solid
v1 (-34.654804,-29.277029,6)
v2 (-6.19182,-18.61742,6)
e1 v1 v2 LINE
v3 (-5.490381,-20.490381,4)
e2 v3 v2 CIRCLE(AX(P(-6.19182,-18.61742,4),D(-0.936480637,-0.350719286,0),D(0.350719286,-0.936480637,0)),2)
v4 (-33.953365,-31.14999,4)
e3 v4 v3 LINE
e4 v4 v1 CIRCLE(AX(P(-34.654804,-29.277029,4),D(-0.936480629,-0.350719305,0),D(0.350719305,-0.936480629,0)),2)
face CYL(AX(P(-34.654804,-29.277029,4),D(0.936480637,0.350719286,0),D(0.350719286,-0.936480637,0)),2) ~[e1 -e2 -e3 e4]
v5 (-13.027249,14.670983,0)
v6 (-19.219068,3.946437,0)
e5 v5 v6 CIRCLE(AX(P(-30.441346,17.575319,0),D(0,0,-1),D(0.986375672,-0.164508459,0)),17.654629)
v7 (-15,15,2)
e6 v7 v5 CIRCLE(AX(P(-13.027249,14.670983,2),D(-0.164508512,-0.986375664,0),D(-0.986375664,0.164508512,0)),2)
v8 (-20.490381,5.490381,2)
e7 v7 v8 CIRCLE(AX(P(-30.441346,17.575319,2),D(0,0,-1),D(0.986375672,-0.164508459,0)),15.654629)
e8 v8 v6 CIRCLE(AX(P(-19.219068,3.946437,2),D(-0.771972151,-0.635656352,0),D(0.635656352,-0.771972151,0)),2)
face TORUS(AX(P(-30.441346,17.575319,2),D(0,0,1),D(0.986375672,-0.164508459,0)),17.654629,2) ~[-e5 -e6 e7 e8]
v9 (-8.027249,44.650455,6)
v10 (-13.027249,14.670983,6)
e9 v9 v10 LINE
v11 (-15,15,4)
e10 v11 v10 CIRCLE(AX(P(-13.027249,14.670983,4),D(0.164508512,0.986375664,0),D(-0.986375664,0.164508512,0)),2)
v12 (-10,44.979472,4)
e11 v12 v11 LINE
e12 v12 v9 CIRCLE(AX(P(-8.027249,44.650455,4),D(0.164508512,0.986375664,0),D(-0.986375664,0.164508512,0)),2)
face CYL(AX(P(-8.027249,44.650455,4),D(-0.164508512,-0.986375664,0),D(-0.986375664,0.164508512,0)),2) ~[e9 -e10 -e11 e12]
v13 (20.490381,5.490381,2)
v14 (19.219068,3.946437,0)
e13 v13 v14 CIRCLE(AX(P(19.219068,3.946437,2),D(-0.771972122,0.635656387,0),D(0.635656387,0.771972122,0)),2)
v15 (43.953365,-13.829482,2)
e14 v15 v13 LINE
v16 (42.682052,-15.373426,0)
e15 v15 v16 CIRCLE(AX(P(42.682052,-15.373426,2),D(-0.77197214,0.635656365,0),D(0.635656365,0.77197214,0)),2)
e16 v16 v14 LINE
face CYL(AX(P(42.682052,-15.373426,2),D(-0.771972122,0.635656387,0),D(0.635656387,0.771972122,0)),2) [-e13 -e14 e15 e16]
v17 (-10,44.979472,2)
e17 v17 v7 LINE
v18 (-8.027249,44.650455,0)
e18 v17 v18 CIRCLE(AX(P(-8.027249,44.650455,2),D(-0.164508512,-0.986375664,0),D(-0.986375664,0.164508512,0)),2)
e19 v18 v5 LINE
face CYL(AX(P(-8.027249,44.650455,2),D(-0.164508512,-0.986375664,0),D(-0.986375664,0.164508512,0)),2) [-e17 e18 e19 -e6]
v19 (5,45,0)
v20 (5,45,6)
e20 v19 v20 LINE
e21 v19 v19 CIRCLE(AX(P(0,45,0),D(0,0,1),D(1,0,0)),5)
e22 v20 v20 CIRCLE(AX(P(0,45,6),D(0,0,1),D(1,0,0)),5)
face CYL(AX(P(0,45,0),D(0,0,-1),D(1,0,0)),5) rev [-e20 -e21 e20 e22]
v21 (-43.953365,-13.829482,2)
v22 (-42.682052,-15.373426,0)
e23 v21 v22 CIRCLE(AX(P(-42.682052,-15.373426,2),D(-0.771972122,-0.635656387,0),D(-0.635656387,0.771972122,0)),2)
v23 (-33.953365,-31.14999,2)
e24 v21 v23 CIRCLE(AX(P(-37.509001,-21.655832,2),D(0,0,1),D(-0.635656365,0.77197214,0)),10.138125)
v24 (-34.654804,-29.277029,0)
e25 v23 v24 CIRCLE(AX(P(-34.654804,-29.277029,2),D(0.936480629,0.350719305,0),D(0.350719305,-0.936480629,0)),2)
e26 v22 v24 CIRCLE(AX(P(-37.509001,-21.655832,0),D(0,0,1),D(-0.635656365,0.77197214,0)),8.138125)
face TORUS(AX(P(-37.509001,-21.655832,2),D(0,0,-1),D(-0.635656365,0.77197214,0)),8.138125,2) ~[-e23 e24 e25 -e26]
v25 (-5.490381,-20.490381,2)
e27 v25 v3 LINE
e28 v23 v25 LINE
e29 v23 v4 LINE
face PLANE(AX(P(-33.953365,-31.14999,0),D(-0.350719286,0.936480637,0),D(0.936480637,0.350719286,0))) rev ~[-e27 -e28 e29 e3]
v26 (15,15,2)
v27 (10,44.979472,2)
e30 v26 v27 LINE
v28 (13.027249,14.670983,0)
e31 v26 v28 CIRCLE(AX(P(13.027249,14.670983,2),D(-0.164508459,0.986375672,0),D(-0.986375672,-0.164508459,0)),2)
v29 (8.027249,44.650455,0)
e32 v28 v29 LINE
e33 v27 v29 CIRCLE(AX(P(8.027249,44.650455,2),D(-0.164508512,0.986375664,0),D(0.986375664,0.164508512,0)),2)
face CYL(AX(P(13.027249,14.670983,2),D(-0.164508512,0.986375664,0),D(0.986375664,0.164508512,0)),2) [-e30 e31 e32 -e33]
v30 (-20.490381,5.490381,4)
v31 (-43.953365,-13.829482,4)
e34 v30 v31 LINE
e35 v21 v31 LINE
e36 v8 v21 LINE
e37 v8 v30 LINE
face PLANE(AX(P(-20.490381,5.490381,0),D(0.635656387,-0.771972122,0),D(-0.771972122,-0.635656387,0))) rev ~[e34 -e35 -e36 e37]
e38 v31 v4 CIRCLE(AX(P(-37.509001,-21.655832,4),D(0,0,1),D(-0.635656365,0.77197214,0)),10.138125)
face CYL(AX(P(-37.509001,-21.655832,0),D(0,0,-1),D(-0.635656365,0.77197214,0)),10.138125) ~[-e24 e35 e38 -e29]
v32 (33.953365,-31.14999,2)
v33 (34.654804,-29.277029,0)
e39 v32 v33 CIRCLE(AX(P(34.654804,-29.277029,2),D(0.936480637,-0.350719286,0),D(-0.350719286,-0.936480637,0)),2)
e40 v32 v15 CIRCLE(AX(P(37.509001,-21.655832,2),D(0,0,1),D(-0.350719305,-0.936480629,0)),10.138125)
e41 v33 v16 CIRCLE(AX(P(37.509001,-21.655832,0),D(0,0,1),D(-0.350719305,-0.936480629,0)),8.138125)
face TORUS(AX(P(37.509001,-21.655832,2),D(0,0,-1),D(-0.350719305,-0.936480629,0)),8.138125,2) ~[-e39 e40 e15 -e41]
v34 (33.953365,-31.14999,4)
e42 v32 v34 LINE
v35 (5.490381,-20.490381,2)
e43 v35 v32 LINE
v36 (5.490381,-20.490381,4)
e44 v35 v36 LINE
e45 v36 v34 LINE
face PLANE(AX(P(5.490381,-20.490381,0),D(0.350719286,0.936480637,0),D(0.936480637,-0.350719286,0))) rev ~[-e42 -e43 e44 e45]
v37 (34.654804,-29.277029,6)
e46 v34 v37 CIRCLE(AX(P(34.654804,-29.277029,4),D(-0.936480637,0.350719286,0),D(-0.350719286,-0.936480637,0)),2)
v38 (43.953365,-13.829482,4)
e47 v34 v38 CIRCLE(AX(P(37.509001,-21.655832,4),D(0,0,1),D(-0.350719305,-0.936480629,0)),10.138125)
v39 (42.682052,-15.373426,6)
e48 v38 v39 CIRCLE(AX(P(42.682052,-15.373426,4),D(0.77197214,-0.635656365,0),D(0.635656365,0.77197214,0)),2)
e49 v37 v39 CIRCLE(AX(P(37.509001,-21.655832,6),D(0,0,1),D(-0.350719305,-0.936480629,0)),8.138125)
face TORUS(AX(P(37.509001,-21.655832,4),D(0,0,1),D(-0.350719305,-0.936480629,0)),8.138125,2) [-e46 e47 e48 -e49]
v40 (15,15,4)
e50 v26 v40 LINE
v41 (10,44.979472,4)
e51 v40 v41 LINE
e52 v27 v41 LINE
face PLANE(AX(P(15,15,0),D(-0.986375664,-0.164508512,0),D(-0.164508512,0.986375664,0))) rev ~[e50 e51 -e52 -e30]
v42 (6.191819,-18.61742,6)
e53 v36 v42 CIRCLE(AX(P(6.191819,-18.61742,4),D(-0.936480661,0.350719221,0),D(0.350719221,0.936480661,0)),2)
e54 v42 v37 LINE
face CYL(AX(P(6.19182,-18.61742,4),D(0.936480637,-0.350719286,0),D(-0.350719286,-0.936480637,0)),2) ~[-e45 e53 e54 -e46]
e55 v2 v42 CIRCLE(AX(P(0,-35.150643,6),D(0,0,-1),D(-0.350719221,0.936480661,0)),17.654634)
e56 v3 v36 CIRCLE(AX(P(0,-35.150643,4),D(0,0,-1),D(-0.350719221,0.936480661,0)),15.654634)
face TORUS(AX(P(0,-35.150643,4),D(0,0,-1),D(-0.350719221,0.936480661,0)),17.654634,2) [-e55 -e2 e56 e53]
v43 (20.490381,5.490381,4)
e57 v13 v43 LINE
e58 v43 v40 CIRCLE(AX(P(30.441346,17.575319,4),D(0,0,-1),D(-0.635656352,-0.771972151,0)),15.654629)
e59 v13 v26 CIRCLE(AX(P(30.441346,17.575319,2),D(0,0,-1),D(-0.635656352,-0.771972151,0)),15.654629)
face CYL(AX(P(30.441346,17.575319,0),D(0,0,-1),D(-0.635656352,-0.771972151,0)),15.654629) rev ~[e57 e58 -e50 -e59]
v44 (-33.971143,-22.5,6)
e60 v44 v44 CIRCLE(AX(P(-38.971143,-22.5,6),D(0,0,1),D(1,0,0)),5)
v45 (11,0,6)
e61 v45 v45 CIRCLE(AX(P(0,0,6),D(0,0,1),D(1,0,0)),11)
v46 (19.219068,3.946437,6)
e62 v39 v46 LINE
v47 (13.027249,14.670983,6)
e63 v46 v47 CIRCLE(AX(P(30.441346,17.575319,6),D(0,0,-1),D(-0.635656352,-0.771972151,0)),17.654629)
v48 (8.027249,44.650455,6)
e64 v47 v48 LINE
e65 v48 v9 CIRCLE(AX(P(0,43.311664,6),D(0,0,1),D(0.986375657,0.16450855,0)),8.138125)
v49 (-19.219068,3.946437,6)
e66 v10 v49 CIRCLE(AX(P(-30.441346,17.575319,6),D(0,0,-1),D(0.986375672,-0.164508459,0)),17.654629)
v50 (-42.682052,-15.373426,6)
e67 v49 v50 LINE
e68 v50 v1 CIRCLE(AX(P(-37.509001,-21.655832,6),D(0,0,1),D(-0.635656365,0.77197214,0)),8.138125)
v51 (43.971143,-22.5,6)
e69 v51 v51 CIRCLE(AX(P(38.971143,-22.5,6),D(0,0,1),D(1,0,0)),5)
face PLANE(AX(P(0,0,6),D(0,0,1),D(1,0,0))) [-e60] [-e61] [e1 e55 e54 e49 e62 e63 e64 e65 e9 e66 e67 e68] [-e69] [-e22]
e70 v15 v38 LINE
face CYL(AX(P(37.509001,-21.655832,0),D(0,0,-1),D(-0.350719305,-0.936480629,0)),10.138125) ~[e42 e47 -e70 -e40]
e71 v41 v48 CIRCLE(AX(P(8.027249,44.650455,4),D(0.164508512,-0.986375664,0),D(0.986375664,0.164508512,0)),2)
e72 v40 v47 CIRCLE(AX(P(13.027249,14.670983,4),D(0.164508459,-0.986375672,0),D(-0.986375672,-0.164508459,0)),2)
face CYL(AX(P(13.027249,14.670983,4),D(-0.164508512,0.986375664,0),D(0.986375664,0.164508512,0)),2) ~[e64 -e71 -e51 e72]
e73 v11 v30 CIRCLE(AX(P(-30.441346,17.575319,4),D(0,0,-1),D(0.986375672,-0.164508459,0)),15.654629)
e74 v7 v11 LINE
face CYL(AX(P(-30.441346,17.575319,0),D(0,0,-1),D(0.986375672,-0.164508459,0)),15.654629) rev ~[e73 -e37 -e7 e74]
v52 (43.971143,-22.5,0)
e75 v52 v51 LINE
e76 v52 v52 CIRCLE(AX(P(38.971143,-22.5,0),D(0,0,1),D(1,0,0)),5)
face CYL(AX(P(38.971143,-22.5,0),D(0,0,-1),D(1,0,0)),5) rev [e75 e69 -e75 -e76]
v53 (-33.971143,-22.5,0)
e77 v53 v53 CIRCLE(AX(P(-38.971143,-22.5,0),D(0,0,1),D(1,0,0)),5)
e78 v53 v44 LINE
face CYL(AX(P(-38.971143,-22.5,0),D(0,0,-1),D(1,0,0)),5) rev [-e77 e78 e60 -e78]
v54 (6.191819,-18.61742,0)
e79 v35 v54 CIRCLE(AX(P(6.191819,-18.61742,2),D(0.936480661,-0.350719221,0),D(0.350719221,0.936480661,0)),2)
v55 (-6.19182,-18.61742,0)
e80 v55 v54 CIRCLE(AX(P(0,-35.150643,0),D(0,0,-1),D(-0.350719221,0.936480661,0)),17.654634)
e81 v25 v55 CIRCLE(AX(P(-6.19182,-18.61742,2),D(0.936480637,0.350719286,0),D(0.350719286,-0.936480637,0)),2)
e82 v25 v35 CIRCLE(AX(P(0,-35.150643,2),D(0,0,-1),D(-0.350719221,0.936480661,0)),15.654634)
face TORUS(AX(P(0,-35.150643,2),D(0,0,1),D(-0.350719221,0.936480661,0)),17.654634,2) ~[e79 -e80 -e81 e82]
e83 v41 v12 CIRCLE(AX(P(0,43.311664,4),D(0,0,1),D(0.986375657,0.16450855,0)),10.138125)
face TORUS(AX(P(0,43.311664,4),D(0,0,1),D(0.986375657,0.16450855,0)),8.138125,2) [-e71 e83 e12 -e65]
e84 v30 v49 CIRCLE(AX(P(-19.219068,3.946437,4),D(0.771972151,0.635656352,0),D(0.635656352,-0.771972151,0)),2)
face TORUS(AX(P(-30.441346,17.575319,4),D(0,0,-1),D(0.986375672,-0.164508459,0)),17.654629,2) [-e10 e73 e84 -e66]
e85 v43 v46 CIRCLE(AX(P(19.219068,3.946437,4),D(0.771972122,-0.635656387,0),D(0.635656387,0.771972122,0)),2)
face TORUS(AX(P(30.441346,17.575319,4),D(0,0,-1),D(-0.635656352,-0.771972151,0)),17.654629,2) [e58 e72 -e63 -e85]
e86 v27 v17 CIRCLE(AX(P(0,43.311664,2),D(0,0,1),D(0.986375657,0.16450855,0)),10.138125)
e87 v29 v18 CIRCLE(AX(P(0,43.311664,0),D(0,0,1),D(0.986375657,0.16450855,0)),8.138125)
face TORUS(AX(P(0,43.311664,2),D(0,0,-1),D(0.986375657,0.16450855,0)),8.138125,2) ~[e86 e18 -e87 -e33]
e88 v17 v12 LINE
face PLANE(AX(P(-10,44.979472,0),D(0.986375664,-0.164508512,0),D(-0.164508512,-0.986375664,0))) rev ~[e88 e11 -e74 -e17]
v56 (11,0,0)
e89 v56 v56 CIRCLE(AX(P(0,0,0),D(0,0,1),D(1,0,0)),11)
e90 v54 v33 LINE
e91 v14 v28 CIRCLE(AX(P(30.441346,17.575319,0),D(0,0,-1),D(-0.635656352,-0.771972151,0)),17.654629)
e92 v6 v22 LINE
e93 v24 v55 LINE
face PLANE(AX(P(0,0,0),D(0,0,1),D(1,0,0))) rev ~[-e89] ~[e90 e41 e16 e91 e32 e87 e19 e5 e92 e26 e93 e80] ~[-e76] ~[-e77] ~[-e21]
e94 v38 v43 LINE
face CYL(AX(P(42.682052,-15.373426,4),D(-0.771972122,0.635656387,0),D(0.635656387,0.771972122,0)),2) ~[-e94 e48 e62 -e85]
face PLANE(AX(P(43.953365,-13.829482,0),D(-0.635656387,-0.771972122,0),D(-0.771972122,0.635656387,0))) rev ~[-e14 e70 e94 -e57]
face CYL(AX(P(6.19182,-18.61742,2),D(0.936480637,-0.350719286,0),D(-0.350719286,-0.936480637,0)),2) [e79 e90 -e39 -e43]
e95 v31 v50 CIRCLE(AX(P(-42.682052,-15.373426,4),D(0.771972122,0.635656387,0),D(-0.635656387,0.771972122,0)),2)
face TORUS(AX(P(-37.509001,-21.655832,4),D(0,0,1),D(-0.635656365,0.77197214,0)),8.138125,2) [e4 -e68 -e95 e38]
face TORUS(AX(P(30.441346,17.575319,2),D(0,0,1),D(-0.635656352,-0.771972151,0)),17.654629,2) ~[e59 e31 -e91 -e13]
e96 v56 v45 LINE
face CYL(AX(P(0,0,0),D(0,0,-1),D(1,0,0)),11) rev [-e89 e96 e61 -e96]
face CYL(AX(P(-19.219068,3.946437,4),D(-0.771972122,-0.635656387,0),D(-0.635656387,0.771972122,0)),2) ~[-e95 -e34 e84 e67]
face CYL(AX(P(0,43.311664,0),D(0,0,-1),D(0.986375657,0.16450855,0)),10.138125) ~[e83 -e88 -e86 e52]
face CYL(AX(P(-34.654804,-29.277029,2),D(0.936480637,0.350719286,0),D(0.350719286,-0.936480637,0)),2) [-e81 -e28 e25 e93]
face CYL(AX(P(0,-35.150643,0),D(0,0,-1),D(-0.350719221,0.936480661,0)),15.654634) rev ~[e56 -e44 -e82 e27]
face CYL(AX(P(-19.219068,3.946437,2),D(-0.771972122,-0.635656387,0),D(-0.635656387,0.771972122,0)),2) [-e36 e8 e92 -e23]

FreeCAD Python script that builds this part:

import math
import FreeCAD as App
import Part
import Sketcher

V = App.Vector
Q = App.Units.Quantity


def edges_at(feature, points):
    """Names of the edges that pass closest to the given points."""
    edges = feature.Shape.Edges
    near = lambda p: min(range(len(edges)), key=lambda i: edges[i].distToShape(Part.Vertex(*p))[0])
    return sorted({f"Edge{near(p) + 1}" for p in points})

doc = App.newDocument("Part")
body = doc.addObject("PartDesign::Body", "Body")

sketch1 = doc.addObject("Sketcher::SketchObject", "Sketch")
body.addObject(sketch1)
sketch1.AttachmentSupport = (doc.XY_Plane, [""])
sketch1.MapMode = "FlatFace"
sketch1.addGeometry([
    Part.ArcOfCircle(Part.Circle(V(0, 43, 0), V(0, 0, 1), 10), math.radians(9), math.radians(171)),
    Part.LineSegment(V(-10, 45, 0), V(-15, 15, 0)),
    Part.ArcOfCircle(Part.Circle(V(-30, 18, 0), V(0, 0, 1), 16), math.radians(-51), math.radians(-9)),
    Part.LineSegment(V(-20, 5, 0), V(-44, -14, 0)),
    Part.ArcOfCircle(Part.Circle(V(-38, -22, 0), V(0, 0, 1), 10), math.radians(129), math.radians(291)),
    Part.LineSegment(V(-34, -31, 0), V(-5, -20, 0)),
    Part.ArcOfCircle(Part.Circle(V(0, -35, 0), V(0, 0, 1), 16), math.radians(69), math.radians(111)),
    Part.LineSegment(V(5, -20, 0), V(34, -31, 0)),
    Part.ArcOfCircle(Part.Circle(V(38, -22, 0), V(0, 0, 1), 10), math.radians(-111), math.radians(51)),
    Part.LineSegment(V(44, -14, 0), V(20, 5, 0)),
    Part.ArcOfCircle(Part.Circle(V(30, 18, 0), V(0, 0, 1), 16), math.radians(-171), math.radians(-129)),
    Part.LineSegment(V(15, 15, 0), V(10, 45, 0)),
    Part.Circle(V(-39, -22, 0), V(0, 0, 1), 5),
    Part.Circle(V(39, -22, 0), V(0, 0, 1), 5),
    Part.Circle(V(0, 0, 0), V(0, 0, 1), 11),
    Part.Circle(V(0, 45, 0), V(0, 0, 1), 5),
], False)
sketch1.addConstraint([
    Sketcher.Constraint("Tangent", 0, 2, 1, 1),
    Sketcher.Constraint("Tangent", 1, 2, 2, 2),
    Sketcher.Constraint("Tangent", 2, 1, 3, 1),
    Sketcher.Constraint("Tangent", 3, 2, 4, 1),
    Sketcher.Constraint("Tangent", 4, 2, 5, 1),
    Sketcher.Constraint("Tangent", 5, 2, 6, 2),
    Sketcher.Constraint("Tangent", 6, 1, 7, 1),
    Sketcher.Constraint("Tangent", 7, 2, 8, 1),
    Sketcher.Constraint("Tangent", 8, 2, 9, 1),
    Sketcher.Constraint("Tangent", 9, 2, 10, 2),
    Sketcher.Constraint("Tangent", 10, 1, 11, 1),
    Sketcher.Constraint("Tangent", 11, 2, 0, 1),
    Sketcher.Constraint("Coincident", 14, 3, -1, 1),
    Sketcher.Constraint("Equal", 0, 4),
    Sketcher.Constraint("Equal", 4, 8),
    Sketcher.Constraint("Equal", 2, 10),
    Sketcher.Constraint("Equal", 12, 13),
    Sketcher.Constraint("Equal", 13, 15),
    Sketcher.Constraint("Symmetric", 4, 3, 8, 3, -2),
    Sketcher.Constraint("Symmetric", 2, 3, 10, 3, -2),
    Sketcher.Constraint("Symmetric", 12, 3, 13, 3, -2),
    Sketcher.Constraint("PointOnObject", 0, 3, -2),
    Sketcher.Constraint("PointOnObject", 6, 3, -2),
    Sketcher.Constraint("PointOnObject", 15, 3, -2),
    Sketcher.Constraint("Equal", 1, 3),
    Sketcher.Constraint("Equal", 3, 5),
    Sketcher.Constraint("Diameter", 12, Q("10 mm")),
    Sketcher.Constraint("Diameter", 14, Q("22 mm")),
    Sketcher.Constraint("DistanceY", -1, 1, 15, 3, Q("45 mm")),
    Sketcher.Constraint("DistanceX", 0, 2, -1, 1, Q("10 mm")),
    Sketcher.Constraint("DistanceX", 1, 2, -1, 1, Q("15 mm")),
    Sketcher.Constraint("DistanceY", -1, 1, 1, 2, Q("15 mm")),
    Sketcher.Constraint("DistanceX", 3, 2, 4, 2, Q("10 mm")),
    Sketcher.Constraint("DistanceX", 2, 1, 5, 2, Q("15 mm")),
    Sketcher.Constraint("DistanceY", 12, 3, -1, 1, Q("22.5 mm")),
    Sketcher.Constraint("Radius", 2, Q("15.654629 mm")),
    Sketcher.Constraint("DistanceX", 4, 3, -1, 1, Q("37.509001 mm")),
    Sketcher.Constraint("DistanceX", 12, 3, 4, 3, Q("1.462142 mm")),
])
pad1 = doc.addObject("PartDesign::Pad", "Pad")
body.addObject(pad1)
pad1.Profile = sketch1
pad1.Length = 6
doc.recompute()

fillet = doc.addObject("PartDesign::Fillet", "Fillet")
body.addObject(fillet)
fillet.Base = (pad1, edges_at(pad1, [(-12.5, 29.99, 6), (-12.5, 29.99, 0)]))
fillet.Radius = 2

doc.recompute()
